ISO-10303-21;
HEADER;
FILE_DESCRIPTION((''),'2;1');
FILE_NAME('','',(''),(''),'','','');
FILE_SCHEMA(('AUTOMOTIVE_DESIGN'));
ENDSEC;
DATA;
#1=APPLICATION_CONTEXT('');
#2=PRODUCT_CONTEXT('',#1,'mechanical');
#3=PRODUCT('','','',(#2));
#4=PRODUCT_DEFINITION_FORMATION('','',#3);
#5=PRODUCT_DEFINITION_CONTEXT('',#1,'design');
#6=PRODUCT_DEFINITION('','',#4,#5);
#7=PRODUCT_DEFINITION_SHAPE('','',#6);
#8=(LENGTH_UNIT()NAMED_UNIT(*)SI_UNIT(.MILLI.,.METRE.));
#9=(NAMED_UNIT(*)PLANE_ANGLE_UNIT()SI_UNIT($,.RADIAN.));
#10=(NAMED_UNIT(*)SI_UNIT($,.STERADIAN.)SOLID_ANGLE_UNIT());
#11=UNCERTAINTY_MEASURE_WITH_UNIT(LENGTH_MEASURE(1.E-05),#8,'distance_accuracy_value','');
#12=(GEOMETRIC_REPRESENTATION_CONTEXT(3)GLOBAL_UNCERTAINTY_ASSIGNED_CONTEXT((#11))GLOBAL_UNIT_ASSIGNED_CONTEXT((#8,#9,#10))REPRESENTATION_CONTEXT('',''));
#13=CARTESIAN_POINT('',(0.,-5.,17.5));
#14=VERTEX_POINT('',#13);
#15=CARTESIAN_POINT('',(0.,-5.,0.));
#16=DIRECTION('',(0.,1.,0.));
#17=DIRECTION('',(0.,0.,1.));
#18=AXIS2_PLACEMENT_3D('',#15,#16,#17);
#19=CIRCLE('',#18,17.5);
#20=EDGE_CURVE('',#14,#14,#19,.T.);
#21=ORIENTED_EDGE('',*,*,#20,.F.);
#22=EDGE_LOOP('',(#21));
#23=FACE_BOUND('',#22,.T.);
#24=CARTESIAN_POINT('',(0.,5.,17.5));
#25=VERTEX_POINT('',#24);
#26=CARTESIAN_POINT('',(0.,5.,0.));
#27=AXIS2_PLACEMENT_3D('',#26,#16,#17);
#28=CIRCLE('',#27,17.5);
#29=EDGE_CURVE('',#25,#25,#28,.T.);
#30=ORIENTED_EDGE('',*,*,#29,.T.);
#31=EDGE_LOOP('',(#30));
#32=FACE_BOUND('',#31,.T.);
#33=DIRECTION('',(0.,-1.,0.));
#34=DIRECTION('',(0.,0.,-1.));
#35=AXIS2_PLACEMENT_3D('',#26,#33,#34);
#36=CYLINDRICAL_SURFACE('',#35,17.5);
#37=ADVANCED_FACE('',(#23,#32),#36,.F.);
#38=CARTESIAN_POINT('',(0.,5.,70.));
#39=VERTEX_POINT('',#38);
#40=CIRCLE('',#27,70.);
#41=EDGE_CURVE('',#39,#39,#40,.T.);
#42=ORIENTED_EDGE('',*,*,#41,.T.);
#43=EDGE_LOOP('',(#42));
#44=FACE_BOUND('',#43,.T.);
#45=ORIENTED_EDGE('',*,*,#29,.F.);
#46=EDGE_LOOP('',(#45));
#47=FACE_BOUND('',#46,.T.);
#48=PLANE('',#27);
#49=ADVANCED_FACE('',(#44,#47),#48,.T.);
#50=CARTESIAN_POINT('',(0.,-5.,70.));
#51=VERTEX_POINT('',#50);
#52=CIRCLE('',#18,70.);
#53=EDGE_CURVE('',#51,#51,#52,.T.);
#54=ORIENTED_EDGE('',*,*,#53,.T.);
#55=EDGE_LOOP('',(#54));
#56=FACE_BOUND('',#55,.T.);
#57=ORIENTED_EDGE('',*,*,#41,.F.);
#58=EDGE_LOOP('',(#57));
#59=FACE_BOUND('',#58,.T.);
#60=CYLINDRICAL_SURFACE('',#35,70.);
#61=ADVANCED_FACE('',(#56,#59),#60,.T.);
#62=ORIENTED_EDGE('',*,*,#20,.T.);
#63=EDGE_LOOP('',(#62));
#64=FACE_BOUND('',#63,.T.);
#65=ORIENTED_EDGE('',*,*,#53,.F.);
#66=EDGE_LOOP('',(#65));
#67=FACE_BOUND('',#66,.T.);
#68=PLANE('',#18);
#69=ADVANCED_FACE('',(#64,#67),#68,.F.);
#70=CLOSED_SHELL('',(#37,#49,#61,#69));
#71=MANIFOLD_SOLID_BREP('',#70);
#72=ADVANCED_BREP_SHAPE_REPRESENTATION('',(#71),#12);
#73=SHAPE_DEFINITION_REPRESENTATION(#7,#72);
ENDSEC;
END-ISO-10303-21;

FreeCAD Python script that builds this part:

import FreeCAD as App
import Part
import Sketcher

V = App.Vector
Q = App.Units.Quantity

doc = App.newDocument("Part")
body = doc.addObject("PartDesign::Body", "Body")

sketch1 = body.newObject("Sketcher::SketchObject", "Sketch")
sketch1.AttachmentSupport = (doc.getObject("XZ_Plane"), [""])
sketch1.MapMode = "FlatFace"
sketch1.addGeometry(Part.Circle(V(0, 0, 0), V(0, 0, 1), 70), False)
sketch1.addGeometry(Part.Circle(V(0, 0, 0), V(0, 0, 1), 18), False)
sketch1.addConstraint(Sketcher.Constraint("Coincident", 0, 3, -1, 1))
sketch1.addConstraint(Sketcher.Constraint("Coincident", 1, 3, -1, 1))
sketch1.addConstraint(Sketcher.Constraint("Diameter", 0, Q("140 mm")))
sketch1.addConstraint(Sketcher.Constraint("Diameter", 1, Q("35 mm")))
pad1 = body.newObject("PartDesign::Pad", "Pad")
pad1.Profile = sketch1
pad1.Length = 10
pad1.Midplane = True

doc.recompute()
